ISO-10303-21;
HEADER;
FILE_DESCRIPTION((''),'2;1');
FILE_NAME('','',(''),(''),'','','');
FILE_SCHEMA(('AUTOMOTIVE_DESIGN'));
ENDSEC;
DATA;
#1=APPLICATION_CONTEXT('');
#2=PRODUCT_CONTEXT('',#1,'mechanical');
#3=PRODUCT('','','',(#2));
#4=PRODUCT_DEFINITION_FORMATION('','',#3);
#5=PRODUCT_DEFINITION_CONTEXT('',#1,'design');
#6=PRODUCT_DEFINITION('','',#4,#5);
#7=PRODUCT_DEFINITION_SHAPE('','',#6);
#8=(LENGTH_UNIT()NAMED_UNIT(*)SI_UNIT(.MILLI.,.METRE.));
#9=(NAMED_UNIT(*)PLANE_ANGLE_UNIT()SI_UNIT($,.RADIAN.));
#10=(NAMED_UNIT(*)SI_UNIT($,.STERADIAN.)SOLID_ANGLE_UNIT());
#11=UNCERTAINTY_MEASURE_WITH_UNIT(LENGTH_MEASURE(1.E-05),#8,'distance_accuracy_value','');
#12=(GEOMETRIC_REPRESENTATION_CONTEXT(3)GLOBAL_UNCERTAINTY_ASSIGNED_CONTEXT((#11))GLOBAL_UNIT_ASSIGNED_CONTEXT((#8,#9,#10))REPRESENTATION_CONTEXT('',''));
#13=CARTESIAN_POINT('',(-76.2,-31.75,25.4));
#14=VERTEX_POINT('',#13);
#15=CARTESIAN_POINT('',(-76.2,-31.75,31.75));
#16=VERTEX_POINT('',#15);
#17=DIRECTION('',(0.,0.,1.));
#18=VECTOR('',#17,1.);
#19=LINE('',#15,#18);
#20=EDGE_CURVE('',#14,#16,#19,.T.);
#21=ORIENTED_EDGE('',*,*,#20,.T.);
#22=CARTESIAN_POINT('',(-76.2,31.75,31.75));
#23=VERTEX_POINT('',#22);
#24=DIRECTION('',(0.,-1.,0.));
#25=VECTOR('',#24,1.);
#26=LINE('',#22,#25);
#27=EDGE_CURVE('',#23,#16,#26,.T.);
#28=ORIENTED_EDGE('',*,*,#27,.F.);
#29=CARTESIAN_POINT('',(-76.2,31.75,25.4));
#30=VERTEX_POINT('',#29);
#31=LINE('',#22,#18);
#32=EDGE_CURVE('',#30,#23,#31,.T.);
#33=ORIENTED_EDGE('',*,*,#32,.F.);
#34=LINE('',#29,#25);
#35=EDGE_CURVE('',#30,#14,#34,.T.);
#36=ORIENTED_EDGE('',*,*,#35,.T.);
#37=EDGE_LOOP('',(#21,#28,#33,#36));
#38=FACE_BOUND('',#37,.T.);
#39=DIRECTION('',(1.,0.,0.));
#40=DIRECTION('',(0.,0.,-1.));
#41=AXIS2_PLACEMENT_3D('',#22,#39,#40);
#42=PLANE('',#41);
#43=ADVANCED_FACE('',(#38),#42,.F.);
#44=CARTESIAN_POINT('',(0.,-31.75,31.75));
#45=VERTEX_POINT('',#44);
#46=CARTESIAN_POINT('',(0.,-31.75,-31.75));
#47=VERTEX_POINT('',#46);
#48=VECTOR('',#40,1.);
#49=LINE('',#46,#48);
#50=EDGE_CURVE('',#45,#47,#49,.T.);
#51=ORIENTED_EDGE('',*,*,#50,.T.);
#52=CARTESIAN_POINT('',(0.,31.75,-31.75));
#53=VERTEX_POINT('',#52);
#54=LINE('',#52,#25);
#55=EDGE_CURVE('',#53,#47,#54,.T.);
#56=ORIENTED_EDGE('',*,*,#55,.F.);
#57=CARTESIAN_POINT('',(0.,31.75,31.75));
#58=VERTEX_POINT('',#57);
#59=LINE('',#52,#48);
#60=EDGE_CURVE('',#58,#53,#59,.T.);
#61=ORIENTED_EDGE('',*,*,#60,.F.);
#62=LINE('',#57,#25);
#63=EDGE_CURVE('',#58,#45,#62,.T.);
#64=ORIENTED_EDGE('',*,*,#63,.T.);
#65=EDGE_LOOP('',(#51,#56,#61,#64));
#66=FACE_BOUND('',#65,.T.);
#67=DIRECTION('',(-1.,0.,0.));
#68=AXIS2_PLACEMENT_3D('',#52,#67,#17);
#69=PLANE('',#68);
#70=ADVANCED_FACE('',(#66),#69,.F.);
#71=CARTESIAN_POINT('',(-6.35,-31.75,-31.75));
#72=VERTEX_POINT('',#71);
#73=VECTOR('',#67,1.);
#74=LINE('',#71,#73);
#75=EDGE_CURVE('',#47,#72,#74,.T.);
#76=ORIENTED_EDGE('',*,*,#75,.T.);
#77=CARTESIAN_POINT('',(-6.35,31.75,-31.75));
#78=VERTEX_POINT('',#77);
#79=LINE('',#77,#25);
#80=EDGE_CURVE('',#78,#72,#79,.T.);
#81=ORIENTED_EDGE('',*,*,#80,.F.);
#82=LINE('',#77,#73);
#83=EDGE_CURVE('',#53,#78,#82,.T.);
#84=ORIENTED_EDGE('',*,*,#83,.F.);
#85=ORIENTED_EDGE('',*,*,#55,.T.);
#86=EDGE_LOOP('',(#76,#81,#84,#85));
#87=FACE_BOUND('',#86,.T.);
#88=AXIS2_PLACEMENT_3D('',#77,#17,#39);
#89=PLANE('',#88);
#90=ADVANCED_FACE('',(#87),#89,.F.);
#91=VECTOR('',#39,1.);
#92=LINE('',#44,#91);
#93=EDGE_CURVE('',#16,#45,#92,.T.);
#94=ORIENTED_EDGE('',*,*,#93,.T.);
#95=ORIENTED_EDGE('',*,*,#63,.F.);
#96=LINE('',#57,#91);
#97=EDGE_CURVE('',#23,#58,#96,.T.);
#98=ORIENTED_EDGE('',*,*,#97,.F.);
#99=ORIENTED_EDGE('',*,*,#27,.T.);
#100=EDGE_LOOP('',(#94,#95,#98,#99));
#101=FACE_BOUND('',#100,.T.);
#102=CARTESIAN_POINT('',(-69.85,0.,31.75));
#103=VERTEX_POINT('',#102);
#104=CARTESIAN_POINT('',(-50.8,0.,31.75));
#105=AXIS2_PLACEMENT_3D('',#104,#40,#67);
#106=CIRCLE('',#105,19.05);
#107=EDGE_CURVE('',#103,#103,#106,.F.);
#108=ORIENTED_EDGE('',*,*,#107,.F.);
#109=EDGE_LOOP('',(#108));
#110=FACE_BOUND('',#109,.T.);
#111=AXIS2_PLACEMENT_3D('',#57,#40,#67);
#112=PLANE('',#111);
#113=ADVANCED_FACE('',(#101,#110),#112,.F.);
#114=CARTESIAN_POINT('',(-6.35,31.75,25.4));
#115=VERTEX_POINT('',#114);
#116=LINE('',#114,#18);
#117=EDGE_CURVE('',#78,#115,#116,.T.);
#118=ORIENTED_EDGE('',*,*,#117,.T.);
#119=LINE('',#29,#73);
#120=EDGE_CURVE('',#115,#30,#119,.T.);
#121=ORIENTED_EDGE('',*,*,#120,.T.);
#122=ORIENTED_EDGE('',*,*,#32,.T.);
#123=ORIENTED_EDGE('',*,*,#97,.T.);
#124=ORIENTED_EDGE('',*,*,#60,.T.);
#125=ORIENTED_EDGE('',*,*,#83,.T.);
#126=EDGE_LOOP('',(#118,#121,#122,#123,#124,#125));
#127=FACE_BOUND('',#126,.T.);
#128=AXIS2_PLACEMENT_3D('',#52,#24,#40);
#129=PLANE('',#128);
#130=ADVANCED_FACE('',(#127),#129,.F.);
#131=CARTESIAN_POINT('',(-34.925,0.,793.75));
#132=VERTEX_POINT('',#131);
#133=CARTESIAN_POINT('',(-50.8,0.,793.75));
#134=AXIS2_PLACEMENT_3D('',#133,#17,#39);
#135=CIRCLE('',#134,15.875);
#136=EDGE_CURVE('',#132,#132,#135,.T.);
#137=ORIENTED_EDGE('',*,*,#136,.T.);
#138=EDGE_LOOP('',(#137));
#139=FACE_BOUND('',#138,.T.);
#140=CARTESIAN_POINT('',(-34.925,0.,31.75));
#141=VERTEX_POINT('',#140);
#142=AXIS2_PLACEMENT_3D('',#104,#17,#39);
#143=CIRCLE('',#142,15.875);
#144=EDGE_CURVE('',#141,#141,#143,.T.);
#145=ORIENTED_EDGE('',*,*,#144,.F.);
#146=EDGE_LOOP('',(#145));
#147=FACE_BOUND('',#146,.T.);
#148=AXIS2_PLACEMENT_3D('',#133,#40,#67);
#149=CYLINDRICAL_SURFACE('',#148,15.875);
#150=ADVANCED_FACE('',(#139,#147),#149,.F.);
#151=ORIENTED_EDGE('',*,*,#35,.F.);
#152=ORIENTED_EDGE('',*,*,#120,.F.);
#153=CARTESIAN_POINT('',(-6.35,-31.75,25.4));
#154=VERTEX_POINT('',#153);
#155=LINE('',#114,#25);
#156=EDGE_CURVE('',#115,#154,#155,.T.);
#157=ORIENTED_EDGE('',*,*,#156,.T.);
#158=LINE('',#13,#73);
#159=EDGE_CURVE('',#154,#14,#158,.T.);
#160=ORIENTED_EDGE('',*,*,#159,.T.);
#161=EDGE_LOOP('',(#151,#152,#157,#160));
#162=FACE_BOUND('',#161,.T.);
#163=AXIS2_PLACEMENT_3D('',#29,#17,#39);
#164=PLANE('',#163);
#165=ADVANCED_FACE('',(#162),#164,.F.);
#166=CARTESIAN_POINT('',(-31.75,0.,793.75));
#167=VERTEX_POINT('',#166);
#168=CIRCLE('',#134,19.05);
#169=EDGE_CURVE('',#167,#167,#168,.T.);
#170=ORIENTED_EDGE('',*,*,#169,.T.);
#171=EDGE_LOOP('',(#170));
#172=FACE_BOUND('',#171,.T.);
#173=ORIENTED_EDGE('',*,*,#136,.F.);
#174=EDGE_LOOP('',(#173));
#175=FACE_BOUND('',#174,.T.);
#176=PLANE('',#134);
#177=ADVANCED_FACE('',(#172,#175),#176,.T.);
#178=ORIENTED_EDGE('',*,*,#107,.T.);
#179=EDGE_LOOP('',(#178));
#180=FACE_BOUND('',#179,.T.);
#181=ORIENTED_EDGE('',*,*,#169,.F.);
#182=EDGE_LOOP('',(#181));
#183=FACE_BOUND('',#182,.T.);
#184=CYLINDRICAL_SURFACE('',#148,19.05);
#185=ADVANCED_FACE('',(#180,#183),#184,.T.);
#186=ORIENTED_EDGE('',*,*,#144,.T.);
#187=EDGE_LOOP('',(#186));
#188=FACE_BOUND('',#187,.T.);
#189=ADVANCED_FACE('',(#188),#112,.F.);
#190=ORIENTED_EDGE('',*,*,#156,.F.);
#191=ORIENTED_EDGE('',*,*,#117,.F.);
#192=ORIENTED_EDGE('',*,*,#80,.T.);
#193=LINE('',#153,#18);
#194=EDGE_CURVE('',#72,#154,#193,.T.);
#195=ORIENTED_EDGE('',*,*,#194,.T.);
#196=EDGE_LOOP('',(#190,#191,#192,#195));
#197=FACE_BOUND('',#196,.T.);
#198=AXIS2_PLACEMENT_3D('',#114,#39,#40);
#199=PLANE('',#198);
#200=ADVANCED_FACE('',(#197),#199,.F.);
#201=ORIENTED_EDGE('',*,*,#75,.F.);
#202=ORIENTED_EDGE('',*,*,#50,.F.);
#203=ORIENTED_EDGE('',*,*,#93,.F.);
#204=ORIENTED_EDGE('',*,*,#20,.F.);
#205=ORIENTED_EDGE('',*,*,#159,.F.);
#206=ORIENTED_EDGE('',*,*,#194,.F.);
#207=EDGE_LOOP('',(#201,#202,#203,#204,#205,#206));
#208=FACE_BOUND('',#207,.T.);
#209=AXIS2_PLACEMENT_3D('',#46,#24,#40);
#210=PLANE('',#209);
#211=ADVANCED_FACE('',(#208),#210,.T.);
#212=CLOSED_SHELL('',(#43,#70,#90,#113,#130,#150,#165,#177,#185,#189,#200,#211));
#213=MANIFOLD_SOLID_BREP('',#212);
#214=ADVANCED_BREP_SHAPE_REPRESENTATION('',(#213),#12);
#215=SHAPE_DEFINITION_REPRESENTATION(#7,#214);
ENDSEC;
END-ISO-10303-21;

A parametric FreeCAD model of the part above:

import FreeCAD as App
import Part
import Sketcher
from FreeCAD import Vector
Q = App.Units.Quantity


def add_polygon(sketch, points):
    """Adds a closed chain of lines whose ends are joined by coincident constraints."""
    first, n = sketch.GeometryCount, len(points)
    for a, b in zip(points, points[1:] + points[:1]):
        sketch.addGeometry(Part.LineSegment(App.Vector(*a, 0), App.Vector(*b, 0)), False)
    for i in range(n):
        sketch.addConstraint(Sketcher.Constraint("Coincident", first + i, 2, first + (i + 1) % n, 1))

doc = App.newDocument("Part")
params = doc.addObject("Spreadsheet::Sheet", "Params")
for row, (alias, value) in enumerate([
    ("sketch1_width", "3 in"),
    ("sketch1_height", "2.5 in"),
    ("pad1_length", "2.5 in"),
    ("sketch2_diameter", "1.5 in"),
    ("sketch2_diameter2", "1.25 in"),
    ("pad2_length", "30 in"),
], start=1):
    params.set(f"A{row}", alias)
    params.set(f"B{row}", "=" + value)
    params.setAlias(f"B{row}", alias)

body = doc.addObject("PartDesign::Body", "Body")

# Sketch on XZ plane
sketch1 = body.newObject("Sketcher::SketchObject", "Sketch")
sketch1.AttachmentSupport = (doc.getObject("XZ_Plane"), [""])
sketch1.MapMode = "FlatFace"
add_polygon(sketch1, [(0, 32), (0, -32), (-6, -32), (-6, 25), (-76, 25), (-76, 32)])  # lines 0-5
sketch1.addConstraint([
    Sketcher.Constraint("Vertical", 0),
    Sketcher.Constraint("Horizontal", 1),
    Sketcher.Constraint("Vertical", 2),
    Sketcher.Constraint("Horizontal", 3),
    Sketcher.Constraint("Vertical", 4),
    Sketcher.Constraint("Horizontal", 5),
    Sketcher.Constraint("Symmetric", 0, 2, 5, 2, -1, 1),
    Sketcher.Constraint("Equal", 1, 4),
    Sketcher.Constraint("DistanceX", 5, 1, 5, 2, Q("3 in")),
    Sketcher.Constraint("DistanceY", 0, 2, 0, 1, Q("2.5 in")),
    Sketcher.Constraint("DistanceY", -1, 1, 2, 2, Q("1 in")),
])
sketch1.setExpression("Constraints[14]", "Params.sketch1_width")
sketch1.setExpression("Constraints[15]", "Params.sketch1_height")
pad1 = body.newObject("PartDesign::Pad", "Pad")
pad1.Profile = sketch1
pad1.setExpression("Length", "Params.pad1_length")
pad1.Midplane = True

# Sketch on XY plane
sketch2 = body.newObject("Sketcher::SketchObject", "Sketch001")
sketch2.AttachmentSupport = (doc.getObject("XY_Plane"), [""])
sketch2.MapMode = "FlatFace"
sketch2.AttachmentOffset = App.Placement(Vector(0, 0, 1.25 * 25.4), App.Rotation())
sketch2.addGeometry([
    Part.Circle(Vector(-51, 0, 0), Vector(0, 0, 1), 19),
    Part.Circle(Vector(-51, 0, 0), Vector(0, 0, 1), 16),
], False)
sketch2.addConstraint([
    Sketcher.Constraint("Coincident", 1, 3, 0, 3),
    Sketcher.Constraint("PointOnObject", 0, 3, -1),
    Sketcher.Constraint("Diameter", 0, Q("1.5 in")),
    Sketcher.Constraint("Diameter", 1, Q("1.25 in")),
    Sketcher.Constraint("DistanceX", 0, 3, -1, 1, Q("2 in")),
])
sketch2.setExpression("Constraints[2]", "Params.sketch2_diameter")
sketch2.setExpression("Constraints[3]", "Params.sketch2_diameter2")
pad2 = body.newObject("PartDesign::Pad", "Pad001")
pad2.Profile = sketch2
pad2.setExpression("Length", "Params.pad2_length")

doc.recompute()
